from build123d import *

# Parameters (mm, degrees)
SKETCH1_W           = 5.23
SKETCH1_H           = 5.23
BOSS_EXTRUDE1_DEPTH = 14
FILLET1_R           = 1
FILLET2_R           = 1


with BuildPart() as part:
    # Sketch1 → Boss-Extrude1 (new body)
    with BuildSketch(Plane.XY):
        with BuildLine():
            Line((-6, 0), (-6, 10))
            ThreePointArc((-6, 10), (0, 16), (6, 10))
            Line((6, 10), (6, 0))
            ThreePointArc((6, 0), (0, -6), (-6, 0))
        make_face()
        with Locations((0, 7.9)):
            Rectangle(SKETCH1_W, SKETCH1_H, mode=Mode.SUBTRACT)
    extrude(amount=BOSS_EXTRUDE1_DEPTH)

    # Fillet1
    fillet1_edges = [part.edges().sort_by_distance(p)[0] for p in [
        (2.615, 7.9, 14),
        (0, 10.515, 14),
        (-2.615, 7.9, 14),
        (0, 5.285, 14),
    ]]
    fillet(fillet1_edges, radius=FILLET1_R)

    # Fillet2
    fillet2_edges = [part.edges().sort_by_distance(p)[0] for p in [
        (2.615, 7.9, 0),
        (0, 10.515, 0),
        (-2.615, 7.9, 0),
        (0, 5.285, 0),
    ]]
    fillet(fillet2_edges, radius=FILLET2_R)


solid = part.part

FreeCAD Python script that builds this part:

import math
import FreeCAD as App
import Part
import Sketcher
Q = App.Units.Quantity


def edges_at(feature, points):
    """Names of the edges that pass closest to the given points."""
    edges = feature.Shape.Edges
    near = lambda p: min(range(len(edges)), key=lambda i: edges[i].distToShape(Part.Vertex(*p))[0])
    return sorted({f"Edge{near(p) + 1}" for p in points})

doc = App.newDocument("Part")
body = doc.addObject("PartDesign::Body", "Body")

sketch1 = doc.addObject("Sketcher::SketchObject", "Sketch")
body.addObject(sketch1)
sketch1.AttachmentSupport = (doc.XY_Plane, [""])
sketch1.MapMode = "FlatFace"
sketch1.addGeometry([
    Part.LineSegment(App.Vector(-6, 10, 0), App.Vector(-6, 0, 0)),
    Part.ArcOfCircle(Part.Circle(App.Vector(0, 0, 0), App.Vector(0, 0, 1), 6), math.radians(180), math.radians(360)),
    Part.LineSegment(App.Vector(6, 0, 0), App.Vector(6, 10, 0)),
    Part.ArcOfCircle(Part.Circle(App.Vector(0, 10, 0), App.Vector(0, 0, 1), 6), math.radians(0), math.radians(180)),
    Part.LineSegment(App.Vector(-3, 5, 0), App.Vector(-3, 11, 0)),
    Part.LineSegment(App.Vector(-3, 11, 0), App.Vector(3, 11, 0)),
    Part.LineSegment(App.Vector(3, 11, 0), App.Vector(3, 5, 0)),
    Part.LineSegment(App.Vector(3, 5, 0), App.Vector(-3, 5, 0)),
], False)
sketch1.addConstraint([
    Sketcher.Constraint("Tangent", 0, 2, 1, 1),
    Sketcher.Constraint("Tangent", 1, 2, 2, 1),
    Sketcher.Constraint("Tangent", 2, 2, 3, 1),
    Sketcher.Constraint("Tangent", 3, 2, 0, 1),
    Sketcher.Constraint("Coincident", 4, 2, 5, 1),
    Sketcher.Constraint("Coincident", 5, 2, 6, 1),
    Sketcher.Constraint("Coincident", 6, 2, 7, 1),
    Sketcher.Constraint("Coincident", 7, 2, 4, 1),
    Sketcher.Constraint("Vertical", 0),
    Sketcher.Constraint("Vertical", 2),
    Sketcher.Constraint("Vertical", 4),
    Sketcher.Constraint("Horizontal", 5),
    Sketcher.Constraint("Vertical", 6),
    Sketcher.Constraint("Horizontal", 7),
    Sketcher.Constraint("Coincident", 1, 3, -1, 1),
    Sketcher.Constraint("Equal", 7, 4),
    Sketcher.Constraint("Radius", 1, Q("6 mm")),
    Sketcher.Constraint("DistanceY", 0, 2, 0, 1, Q("10 mm")),
    Sketcher.Constraint("DistanceX", 5, 1, 5, 2, Q("5.23 mm")),
    Sketcher.Constraint("DistanceX", 4, 2, -1, 1, Q("2.615 mm")),
    Sketcher.Constraint("DistanceY", -1, 1, 4, 2, Q("10.515 mm")),
])
pad1 = doc.addObject("PartDesign::Pad", "Pad")
body.addObject(pad1)
pad1.Profile = sketch1
pad1.Length = 14
doc.recompute()

fillet = doc.addObject("PartDesign::Fillet", "Fillet")
body.addObject(fillet)
fillet.Base = (pad1, edges_at(pad1, [
    (2.615, 7.9, 14),
    (0, 10.515, 14),
    (-2.615, 7.9, 14),
    (0, 5.285, 14),
]))
fillet.Radius = 1
doc.recompute()

fillet2 = doc.addObject("PartDesign::Fillet", "Fillet001")
body.addObject(fillet2)
fillet2.Base = (fillet, edges_at(fillet, [
    (2.615, 7.9, 0),
    (0, 10.515, 0),
    (-2.615, 7.9, 0),
    (0, 5.285, 0),
]))
fillet2.Radius = 1

doc.recompute()
